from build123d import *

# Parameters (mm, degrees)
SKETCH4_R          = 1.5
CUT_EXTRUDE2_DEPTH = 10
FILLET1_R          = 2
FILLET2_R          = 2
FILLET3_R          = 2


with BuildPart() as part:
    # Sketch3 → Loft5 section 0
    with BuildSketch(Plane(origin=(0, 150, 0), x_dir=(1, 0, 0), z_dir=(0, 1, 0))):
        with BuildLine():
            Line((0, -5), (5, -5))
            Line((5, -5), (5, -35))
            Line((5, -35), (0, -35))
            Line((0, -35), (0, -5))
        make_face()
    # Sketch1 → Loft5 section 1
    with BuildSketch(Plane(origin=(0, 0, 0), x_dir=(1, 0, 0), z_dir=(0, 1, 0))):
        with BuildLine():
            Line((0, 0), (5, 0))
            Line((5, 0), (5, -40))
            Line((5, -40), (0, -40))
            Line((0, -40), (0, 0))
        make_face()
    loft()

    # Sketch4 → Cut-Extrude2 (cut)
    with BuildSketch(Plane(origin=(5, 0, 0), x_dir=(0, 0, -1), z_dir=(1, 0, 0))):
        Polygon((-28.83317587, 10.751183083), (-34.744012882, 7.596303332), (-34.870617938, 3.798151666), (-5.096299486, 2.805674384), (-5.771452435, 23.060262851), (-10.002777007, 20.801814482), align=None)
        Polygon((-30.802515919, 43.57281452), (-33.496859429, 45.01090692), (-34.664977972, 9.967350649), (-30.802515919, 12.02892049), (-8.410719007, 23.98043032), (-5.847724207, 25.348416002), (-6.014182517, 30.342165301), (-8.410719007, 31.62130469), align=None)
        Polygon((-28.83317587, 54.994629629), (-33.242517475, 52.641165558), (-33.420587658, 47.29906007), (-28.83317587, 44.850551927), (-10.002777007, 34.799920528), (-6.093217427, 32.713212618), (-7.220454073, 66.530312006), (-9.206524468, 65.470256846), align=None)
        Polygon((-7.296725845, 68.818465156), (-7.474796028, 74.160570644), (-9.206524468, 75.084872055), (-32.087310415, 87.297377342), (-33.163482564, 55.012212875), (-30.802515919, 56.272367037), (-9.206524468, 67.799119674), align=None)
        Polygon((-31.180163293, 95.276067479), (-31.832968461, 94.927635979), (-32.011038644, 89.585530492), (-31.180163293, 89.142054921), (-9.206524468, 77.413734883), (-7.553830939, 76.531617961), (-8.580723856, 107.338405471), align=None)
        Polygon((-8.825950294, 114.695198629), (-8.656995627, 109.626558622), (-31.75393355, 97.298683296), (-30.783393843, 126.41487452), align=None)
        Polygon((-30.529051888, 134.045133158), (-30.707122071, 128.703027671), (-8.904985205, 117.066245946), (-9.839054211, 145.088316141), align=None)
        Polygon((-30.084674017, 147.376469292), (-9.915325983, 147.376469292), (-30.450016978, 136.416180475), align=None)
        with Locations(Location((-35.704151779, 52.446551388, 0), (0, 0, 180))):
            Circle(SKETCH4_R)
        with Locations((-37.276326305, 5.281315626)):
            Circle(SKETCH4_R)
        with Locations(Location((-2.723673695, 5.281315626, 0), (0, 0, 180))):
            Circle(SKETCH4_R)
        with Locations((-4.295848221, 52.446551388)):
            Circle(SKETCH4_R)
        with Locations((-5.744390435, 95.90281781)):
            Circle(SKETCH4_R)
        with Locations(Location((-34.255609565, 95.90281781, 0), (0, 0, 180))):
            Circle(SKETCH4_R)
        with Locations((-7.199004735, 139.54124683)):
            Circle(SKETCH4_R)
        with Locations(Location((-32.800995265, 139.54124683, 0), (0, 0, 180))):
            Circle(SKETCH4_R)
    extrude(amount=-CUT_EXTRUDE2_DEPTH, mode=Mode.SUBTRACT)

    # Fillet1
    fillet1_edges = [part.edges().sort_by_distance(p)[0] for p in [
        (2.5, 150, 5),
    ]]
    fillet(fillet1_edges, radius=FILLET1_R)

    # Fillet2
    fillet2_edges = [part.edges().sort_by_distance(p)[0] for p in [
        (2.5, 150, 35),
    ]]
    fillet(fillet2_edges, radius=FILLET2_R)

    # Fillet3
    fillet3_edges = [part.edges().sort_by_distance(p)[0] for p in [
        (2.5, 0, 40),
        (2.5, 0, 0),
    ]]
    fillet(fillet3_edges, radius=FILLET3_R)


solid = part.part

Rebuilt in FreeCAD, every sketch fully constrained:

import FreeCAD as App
import Part
import Sketcher

V = App.Vector


def edges_at(feature, points):
    """Names of the edges that pass closest to the given points."""
    edges = feature.Shape.Edges
    near = lambda p: min(range(len(edges)), key=lambda i: edges[i].distToShape(Part.Vertex(*p))[0])
    return sorted({f"Edge{near(p) + 1}" for p in points})


def add_polygon(sketch, points):
    """Adds a closed chain of lines whose ends are joined by coincident constraints."""
    first, n = sketch.GeometryCount, len(points)
    for a, b in zip(points, points[1:] + points[:1]):
        sketch.addGeometry(Part.LineSegment(App.Vector(*a, 0), App.Vector(*b, 0)), False)
    for i in range(n):
        sketch.addConstraint(Sketcher.Constraint("Coincident", first + i, 2, first + (i + 1) % n, 1))

doc = App.newDocument("Part")
body = doc.addObject("PartDesign::Body", "Body")

# Sketch on XZ plane
sketch1 = doc.addObject("Sketcher::SketchObject", "Sketch")
body.addObject(sketch1)
sketch1.AttachmentSupport = (doc.XZ_Plane, [""])
sketch1.MapMode = "FlatFace"
sketch1.AttachmentOffset = App.Placement(V(0, 0, -150), App.Rotation())
add_polygon(sketch1, [(5, 5), (0, 5), (0, 35), (5, 35)])  # lines 0-3
sketch1.addConstraint(Sketcher.Constraint("Horizontal", 0))
sketch1.addConstraint(Sketcher.Constraint("Vertical", 1))
sketch1.addConstraint(Sketcher.Constraint("Horizontal", 2))
sketch1.addConstraint(Sketcher.Constraint("Vertical", 3))
sketch1.addConstraint(Sketcher.Constraint("PointOnObject", 0, 2, -2))
sketch1.addConstraint(Sketcher.Constraint("DistanceX", 0, 2, 0, 1, 5.0))
sketch1.addConstraint(Sketcher.Constraint("DistanceY", 1, 1, 1, 2, 30.0))
sketch1.addConstraint(Sketcher.Constraint("DistanceY", -1, 1, 0, 2, 5.0))

# Sketch on XZ plane
sketch2 = doc.addObject("Sketcher::SketchObject", "Sketch001")
body.addObject(sketch2)
sketch2.AttachmentSupport = (doc.XZ_Plane, [""])
sketch2.MapMode = "FlatFace"
add_polygon(sketch2, [(5, 0), (0, 0), (0, 40), (5, 40)])  # lines 0-3
sketch2.addConstraint(Sketcher.Constraint("Horizontal", 0))
sketch2.addConstraint(Sketcher.Constraint("Vertical", 1))
sketch2.addConstraint(Sketcher.Constraint("Horizontal", 2))
sketch2.addConstraint(Sketcher.Constraint("Vertical", 3))
sketch2.addConstraint(Sketcher.Constraint("Coincident", 0, 2, -1, 1))
sketch2.addConstraint(Sketcher.Constraint("DistanceX", 0, 2, 0, 1, 5.0))
sketch2.addConstraint(Sketcher.Constraint("DistanceY", 1, 1, 1, 2, 40.0))

additiveloft = doc.addObject("PartDesign::AdditiveLoft", "AdditiveLoft")
body.addObject(additiveloft)
additiveloft.Profile = sketch1
additiveloft.Sections = [sketch2]

# Sketch on YZ plane
sketch3 = doc.addObject("Sketcher::SketchObject", "Sketch002")
body.addObject(sketch3)
sketch3.AttachmentSupport = (doc.YZ_Plane, [""])
sketch3.MapMode = "FlatFace"
sketch3.AttachmentOffset = App.Placement(V(0, 0, 5), App.Rotation())
add_polygon(sketch3, [(10.8, 28.8), (7.6, 34.7), (3.8, 34.9), (2.8, 5.1), (23.1, 5.8), (20.8, 10)])  # lines 0-5
add_polygon(sketch3, [(43.6, 30.8), (45, 33.5), (10, 34.7), (12, 30.8), (24, 8.4), (25.3, 5.8), (30.3, 6), (31.6, 8.4)])  # lines 6-13
add_polygon(sketch3, [(55, 28.8), (52.6, 33.2), (47.3, 33.4), (44.9, 28.8), (34.8, 10), (32.7, 6.1), (66.5, 7.2), (65.5, 9.2)])  # lines 14-21
add_polygon(sketch3, [(68.8, 7.3), (74.2, 7.5), (75.1, 9.2), (87.3, 32.1), (55, 33.2), (56.3, 30.8), (67.8, 9.2)])  # lines 22-28
add_polygon(sketch3, [(95.3, 31.2), (94.9, 31.8), (89.6, 32), (89.1, 31.2), (77.4, 9.2), (76.5, 7.6), (107.3, 8.6)])  # lines 29-35
add_polygon(sketch3, [(109.6, 8.7), (114.7, 8.8), (126.4, 30.8), (97.3, 31.8)])  # lines 36-39
add_polygon(sketch3, [(134, 30.5), (128.7, 30.7), (117.1, 8.9), (145.1, 9.8)])  # lines 40-43
add_polygon(sketch3, [(147.4, 9.9), (147.4, 30.1), (136.4, 30.5)])  # lines 44-46
sketch3.addGeometry(Part.Circle(V(52.4, 35.7, 0), V(0, 0, 1), 1.5), False)  # 47
sketch3.addGeometry(Part.Circle(V(5.3, 37.3, 0), V(0, 0, 1), 1.5), False)  # 48
sketch3.addGeometry(Part.Circle(V(5.3, 2.7, 0), V(0, 0, 1), 1.5), False)  # 49
sketch3.addGeometry(Part.Circle(V(52.4, 4.3, 0), V(0, 0, 1), 1.5), False)  # 50
sketch3.addGeometry(Part.Circle(V(95.9, 5.7, 0), V(0, 0, 1), 1.5), False)  # 51
sketch3.addGeometry(Part.Circle(V(95.9, 34.3, 0), V(0, 0, 1), 1.5), False)  # 52
sketch3.addGeometry(Part.Circle(V(139.5, 7.2, 0), V(0, 0, 1), 1.5), False)  # 53
sketch3.addGeometry(Part.Circle(V(139.5, 32.8, 0), V(0, 0, 1), 1.5), False)  # 54
sketch3.addConstraint(Sketcher.Constraint("Vertical", 44))
sketch3.addConstraint(Sketcher.Constraint("Equal", 47, 48))
sketch3.addConstraint(Sketcher.Constraint("Equal", 48, 49))
sketch3.addConstraint(Sketcher.Constraint("Equal", 49, 50))
sketch3.addConstraint(Sketcher.Constraint("Equal", 50, 51))
sketch3.addConstraint(Sketcher.Constraint("Equal", 51, 52))
sketch3.addConstraint(Sketcher.Constraint("Equal", 52, 53))
sketch3.addConstraint(Sketcher.Constraint("Equal", 53, 54))
sketch3.addConstraint(Sketcher.Constraint("Perpendicular", 1, 2))
sketch3.addConstraint(Sketcher.Constraint("Parallel", 0, 4))
sketch3.addConstraint(Sketcher.Constraint("Parallel", 4, 5))
sketch3.addConstraint(Sketcher.Constraint("Perpendicular", 2, 7))
sketch3.addConstraint(Sketcher.Constraint("Parallel", 5, 8))
sketch3.addConstraint(Sketcher.Constraint("Parallel", 8, 9))
sketch3.addConstraint(Sketcher.Constraint("Parallel", 9, 10))
sketch3.addConstraint(Sketcher.Constraint("Parallel", 3, 11))
sketch3.addConstraint(Sketcher.Constraint("Parallel", 6, 12))
sketch3.addConstraint(Sketcher.Constraint("Parallel", 12, 13))
sketch3.addConstraint(Sketcher.Constraint("Parallel", 10, 14))
sketch3.addConstraint(Sketcher.Constraint("Parallel", 7, 15))
sketch3.addConstraint(Sketcher.Constraint("Parallel", 13, 16))
sketch3.addConstraint(Sketcher.Constraint("Parallel", 16, 17))
sketch3.addConstraint(Sketcher.Constraint("Parallel", 17, 18))
sketch3.addConstraint(Sketcher.Constraint("Parallel", 11, 19))
sketch3.addConstraint(Sketcher.Constraint("Parallel", 14, 20))
sketch3.addConstraint(Sketcher.Constraint("Parallel", 20, 21))
sketch3.addConstraint(Sketcher.Constraint("Parallel", 19, 22))
sketch3.addConstraint(Sketcher.Constraint("Parallel", 18, 23))
sketch3.addConstraint(Sketcher.Constraint("Parallel", 23, 24))
sketch3.addConstraint(Sketcher.Constraint("Parallel", 15, 25))
sketch3.addConstraint(Sketcher.Constraint("Parallel", 21, 26))
sketch3.addConstraint(Sketcher.Constraint("Parallel", 26, 27))
sketch3.addConstraint(Sketcher.Constraint("Parallel", 27, 28))
sketch3.addConstraint(Sketcher.Constraint("Parallel", 28, 29))
sketch3.addConstraint(Sketcher.Constraint("Parallel", 25, 30))
sketch3.addConstraint(Sketcher.Constraint("Parallel", 24, 31))
sketch3.addConstraint(Sketcher.Constraint("Parallel", 31, 32))
sketch3.addConstraint(Sketcher.Constraint("Parallel", 32, 33))
sketch3.addConstraint(Sketcher.Constraint("Parallel", 22, 34))
sketch3.addConstraint(Sketcher.Constraint("Parallel", 29, 35))
sketch3.addConstraint(Sketcher.Constraint("Parallel", 34, 36))
sketch3.addConstraint(Sketcher.Constraint("Parallel", 33, 37))
sketch3.addConstraint(Sketcher.Constraint("Parallel", 30, 38))
sketch3.addConstraint(Sketcher.Constraint("Parallel", 35, 39))
sketch3.addConstraint(Sketcher.Constraint("Parallel", 38, 40))
sketch3.addConstraint(Sketcher.Constraint("Parallel", 37, 41))
sketch3.addConstraint(Sketcher.Constraint("Parallel", 36, 42))
sketch3.addConstraint(Sketcher.Constraint("Parallel", 39, 43))
sketch3.addConstraint(Sketcher.Constraint("Parallel", 40, 45))
sketch3.addConstraint(Sketcher.Constraint("Parallel", 43, 46))
sketch3.addConstraint(Sketcher.Constraint("Horizontal", 9, 2, 12, 2))
sketch3.addConstraint(Sketcher.Constraint("Horizontal", 8, 2, 13, 2))
sketch3.addConstraint(Sketcher.Constraint("Horizontal", 5, 2, 16, 2))
sketch3.addConstraint(Sketcher.Constraint("Horizontal", 4, 2, 17, 2))
sketch3.addConstraint(Sketcher.Constraint("Horizontal", 16, 2, 21, 2))
sketch3.addConstraint(Sketcher.Constraint("Horizontal", 20, 2, 23, 2))
sketch3.addConstraint(Sketcher.Constraint("Horizontal", 13, 2, 26, 2))
sketch3.addConstraint(Sketcher.Constraint("Horizontal", 23, 2, 27, 2))
sketch3.addConstraint(Sketcher.Constraint("Horizontal", 27, 2, 32, 2))
sketch3.addConstraint(Sketcher.Constraint("Horizontal", 31, 2, 35, 2))
sketch3.addConstraint(Sketcher.Constraint("Vertical", 48, 3, 49, 3))
sketch3.addConstraint(Sketcher.Constraint("Vertical", 47, 3, 50, 3))
sketch3.addConstraint(Sketcher.Constraint("Vertical", 51, 3, 52, 3))
sketch3.addConstraint(Sketcher.Constraint("Vertical", 53, 3, 54, 3))
sketch3.addConstraint(Sketcher.Constraint("Equal", 9, 13))
sketch3.addConstraint(Sketcher.Constraint("Equal", 15, 22))
sketch3.addConstraint(Sketcher.Constraint("Equal", 22, 30))
sketch3.addConstraint(Sketcher.Constraint("Equal", 30, 40))
sketch3.addConstraint(Sketcher.Constraint("Diameter", 47, 3.0))
sketch3.addConstraint(Sketcher.Constraint("DistanceY", 13, 2, 14, 2, 2.440002))
sketch3.addConstraint(Sketcher.Constraint("DistanceX", 16, 2, 47, 3, 7.595999))
sketch3.addConstraint(Sketcher.Constraint("DistanceX", 41, 2, 53, 3, 22.475001))
sketch3.addConstraint(Sketcher.Constraint("DistanceY", 44, 1, 44, 2, 20.169348))
sketch3.addConstraint(Sketcher.Constraint("DistanceY", -1, 1, 2, 2, 5.096299))
sketch3.addConstraint(Sketcher.Constraint("DistanceX", -1, 1, 36, 2, 114.695199))
sketch3.addConstraint(Sketcher.Constraint("DistanceX", 1, 2, 47, 3, 48.6484))
sketch3.addConstraint(Sketcher.Constraint("DistanceX", 49, 3, 4, 2, 15.520499))
sketch3.addConstraint(Sketcher.Constraint("DistanceY", 4, 2, 5, 2, 18.830399))
sketch3.addConstraint(Sketcher.Constraint("DistanceX", 1, 2, 7, 2, 6.169199))
sketch3.addConstraint(Sketcher.Constraint("DistanceY", 4, 2, 7, 2, 24.662201))
sketch3.addConstraint(Sketcher.Constraint("DistanceX", 4, 2, 10, 2, 4.546602))
sketch3.addConstraint(Sketcher.Constraint("DistanceY", 12, 2, 14, 2, 24.831798))
sketch3.addConstraint(Sketcher.Constraint("DistanceY", 18, 2, 12, 2, 2.317502))
sketch3.addConstraint(Sketcher.Constraint("DistanceX", 22, 2, 23, 2, 0.924301))
sketch3.addConstraint(Sketcher.Constraint("DistanceY", 24, 2, 52, 3, 2.168299))
sketch3.addConstraint(Sketcher.Constraint("DistanceX", 14, 2, 26, 2, 3.631201))
sketch3.addConstraint(Sketcher.Constraint("DistanceY", 28, 2, 27, 2, 1.909799))
sketch3.addConstraint(Sketcher.Constraint("DistanceX", 27, 2, 33, 2, 8.732498))
sketch3.addConstraint(Sketcher.Constraint("DistanceY", 37, 2, 54, 3, 2.017601))
sketch3.addConstraint(Sketcher.Constraint("Distance", 1, 3.800261))
sketch3.addConstraint(Sketcher.Constraint("Distance", 4, 4.796321))
sketch3.addConstraint(Sketcher.Constraint("Distance", 6, 3.054111))
sketch3.addConstraint(Sketcher.Constraint("Distance", 7, 35.06302))
sketch3.addConstraint(Sketcher.Constraint("Distance", 9, 25.381709))
sketch3.addConstraint(Sketcher.Constraint("Distance", 12, 2.716539))
sketch3.addConstraint(Sketcher.Constraint("Distance", 14, 4.998108))
sketch3.addConstraint(Sketcher.Constraint("Distance", 19, 33.835881))
sketch3.addConstraint(Sketcher.Constraint("Distance", 21, 22.247342))
sketch3.addConstraint(Sketcher.Constraint("Distance", 24, 25.935991))
sketch3.addConstraint(Sketcher.Constraint("Distance", 31, 0.94182))
sketch3.addConstraint(Sketcher.Constraint("DistanceX", -1, 1, 47, 3, 52.446551))
sketch3.addConstraint(Sketcher.Constraint("DistanceY", -1, 1, 47, 3, 35.704152))
sketch3.addConstraint(Sketcher.Constraint("DistanceY", -1, 1, 50, 3, 4.295848))
sketch3.addConstraint(Sketcher.Constraint("DistanceY", -1, 1, 51, 3, 5.74439))
sketch3.addConstraint(Sketcher.Constraint("DistanceY", -1, 1, 29, 2, 31.832968))
sketch3.addConstraint(Sketcher.Constraint("DistanceX", -1, 1, 30, 2, 89.58553))
sketch3.addConstraint(Sketcher.Constraint("DistanceY", -1, 1, 36, 2, 8.82595))
sketch3.addConstraint(Sketcher.Constraint("DistanceX", -1, 1, 39, 2, 109.626559))
sketch3.addConstraint(Sketcher.Constraint("DistanceY", -1, 1, 43, 2, 30.529052))
sketch3.addConstraint(Sketcher.Constraint("DistanceX", -1, 1, 44, 2, 147.376469))
sketch3.addConstraint(Sketcher.Constraint("DistanceY", 49, 3, 47, 3, 32.980478))
sketch3.addConstraint(Sketcher.Constraint("DistanceY", 50, 3, 48, 3, 32.980478))
sketch3.addConstraint(Sketcher.Constraint("DistanceX", 51, 3, 53, 3, 43.638429))
sketch3.addConstraint(Sketcher.Constraint("DistanceX", 49, 3, 53, 3, 134.259931))
sketch3.addConstraint(Sketcher.Constraint("DistanceY", 49, 3, 53, 3, 4.475331))
sketch3.addConstraint(Sketcher.Constraint("DistanceY", 53, 3, 54, 3, 25.601991))
sketch3.addConstraint(Sketcher.Constraint("DistanceX", 40, 2, 54, 3, 10.838219))
sketch3.addConstraint(Sketcher.Constraint("DistanceY", 44, 2, 54, 3, 2.716321))
pocket1 = doc.addObject("PartDesign::Pocket", "Pocket")
body.addObject(pocket1)
pocket1.Profile = sketch3
pocket1.Length = 10
doc.recompute()

fillet = doc.addObject("PartDesign::Fillet", "Fillet")
body.addObject(fillet)
fillet.Base = (pocket1, edges_at(pocket1, [(2.5, 150, 5)]))
fillet.Radius = 2
doc.recompute()

fillet2 = doc.addObject("PartDesign::Fillet", "Fillet001")
body.addObject(fillet2)
fillet2.Base = (fillet, edges_at(fillet, [(2.5, 150, 35)]))
fillet2.Radius = 2
doc.recompute()

fillet3 = doc.addObject("PartDesign::Fillet", "Fillet002")
body.addObject(fillet3)
fillet3.Base = (fillet2, edges_at(fillet2, [(2.5, 0, 40), (2.5, 0, 0)]))
fillet3.Radius = 2

doc.recompute()
